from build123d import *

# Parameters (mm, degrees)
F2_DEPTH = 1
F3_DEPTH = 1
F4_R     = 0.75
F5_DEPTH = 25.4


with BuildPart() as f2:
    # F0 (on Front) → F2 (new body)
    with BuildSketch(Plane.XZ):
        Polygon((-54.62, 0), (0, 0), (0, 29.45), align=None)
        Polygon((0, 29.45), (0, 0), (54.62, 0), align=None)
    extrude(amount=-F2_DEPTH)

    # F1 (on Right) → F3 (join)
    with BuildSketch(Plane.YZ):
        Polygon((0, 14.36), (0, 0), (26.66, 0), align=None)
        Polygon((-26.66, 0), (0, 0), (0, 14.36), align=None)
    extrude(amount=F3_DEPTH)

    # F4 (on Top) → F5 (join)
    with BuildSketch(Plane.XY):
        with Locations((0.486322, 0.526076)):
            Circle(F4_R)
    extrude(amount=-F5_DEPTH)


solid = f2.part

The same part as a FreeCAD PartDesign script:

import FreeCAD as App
import Part
import Sketcher

V = App.Vector
Q = App.Units.Quantity


def add_polygon(sketch, points):
    """Adds a closed chain of lines whose ends are joined by coincident constraints."""
    first, n = sketch.GeometryCount, len(points)
    for a, b in zip(points, points[1:] + points[:1]):
        sketch.addGeometry(Part.LineSegment(App.Vector(*a, 0), App.Vector(*b, 0)), False)
    for i in range(n):
        sketch.addConstraint(Sketcher.Constraint("Coincident", first + i, 2, first + (i + 1) % n, 1))

doc = App.newDocument("Part")
body = doc.addObject("PartDesign::Body", "Body")

sketch1 = body.newObject("Sketcher::SketchObject", "Sketch")
sketch1.AttachmentSupport = (doc.getObject("XZ_Plane"), [""])
sketch1.MapMode = "FlatFace"
add_polygon(sketch1, [(-55, 0), (55, 0), (0, 29)])
sketch1.addConstraint(Sketcher.Constraint("Horizontal", 0))
sketch1.addConstraint(Sketcher.Constraint("Symmetric", 0, 2, 2, 2, -1, 1))
sketch1.addConstraint(Sketcher.Constraint("PointOnObject", 1, 2, -2))
sketch1.addConstraint(Sketcher.Constraint("DistanceX", 0, 1, 0, 2, Q("109.24 mm")))
sketch1.addConstraint(Sketcher.Constraint("DistanceY", -1, 1, 1, 2, Q("29.45 mm")))
pad1 = body.newObject("PartDesign::Pad", "Pad")
pad1.Profile = sketch1
pad1.Length = 1
pad1.Reversed = True

sketch2 = body.newObject("Sketcher::SketchObject", "Sketch001")
sketch2.AttachmentSupport = (doc.getObject("YZ_Plane"), [""])
sketch2.MapMode = "FlatFace"
add_polygon(sketch2, [(27, 0), (0, 14), (-27, 0)])
sketch2.addConstraint(Sketcher.Constraint("Horizontal", 2))
sketch2.addConstraint(Sketcher.Constraint("Symmetric", 1, 2, 2, 2, -1, 1))
sketch2.addConstraint(Sketcher.Constraint("PointOnObject", 0, 2, -2))
sketch2.addConstraint(Sketcher.Constraint("DistanceX", 2, 1, 2, 2, Q("53.32 mm")))
sketch2.addConstraint(Sketcher.Constraint("DistanceY", -1, 1, 0, 2, Q("14.36 mm")))
pad2 = body.newObject("PartDesign::Pad", "Pad001")
pad2.Profile = sketch2
pad2.Length = 1

sketch3 = body.newObject("Sketcher::SketchObject", "Sketch002")
sketch3.AttachmentSupport = (doc.getObject("XY_Plane"), [""])
sketch3.MapMode = "FlatFace"
sketch3.addGeometry(Part.Circle(V(0.5, 0.5, 0), V(0, 0, 1), 0.8), False)
sketch3.addConstraint(Sketcher.Constraint("Diameter", 0, Q("1.5 mm")))
sketch3.addConstraint(Sketcher.Constraint("DistanceX", -1, 1, 0, 3, Q("0.486322 mm")))
sketch3.addConstraint(Sketcher.Constraint("DistanceY", -1, 1, 0, 3, Q("0.526076 mm")))
pad3 = body.newObject("PartDesign::Pad", "Pad002")
pad3.Profile = sketch3
pad3.Length = 25.4
pad3.Reversed = True

doc.recompute()
